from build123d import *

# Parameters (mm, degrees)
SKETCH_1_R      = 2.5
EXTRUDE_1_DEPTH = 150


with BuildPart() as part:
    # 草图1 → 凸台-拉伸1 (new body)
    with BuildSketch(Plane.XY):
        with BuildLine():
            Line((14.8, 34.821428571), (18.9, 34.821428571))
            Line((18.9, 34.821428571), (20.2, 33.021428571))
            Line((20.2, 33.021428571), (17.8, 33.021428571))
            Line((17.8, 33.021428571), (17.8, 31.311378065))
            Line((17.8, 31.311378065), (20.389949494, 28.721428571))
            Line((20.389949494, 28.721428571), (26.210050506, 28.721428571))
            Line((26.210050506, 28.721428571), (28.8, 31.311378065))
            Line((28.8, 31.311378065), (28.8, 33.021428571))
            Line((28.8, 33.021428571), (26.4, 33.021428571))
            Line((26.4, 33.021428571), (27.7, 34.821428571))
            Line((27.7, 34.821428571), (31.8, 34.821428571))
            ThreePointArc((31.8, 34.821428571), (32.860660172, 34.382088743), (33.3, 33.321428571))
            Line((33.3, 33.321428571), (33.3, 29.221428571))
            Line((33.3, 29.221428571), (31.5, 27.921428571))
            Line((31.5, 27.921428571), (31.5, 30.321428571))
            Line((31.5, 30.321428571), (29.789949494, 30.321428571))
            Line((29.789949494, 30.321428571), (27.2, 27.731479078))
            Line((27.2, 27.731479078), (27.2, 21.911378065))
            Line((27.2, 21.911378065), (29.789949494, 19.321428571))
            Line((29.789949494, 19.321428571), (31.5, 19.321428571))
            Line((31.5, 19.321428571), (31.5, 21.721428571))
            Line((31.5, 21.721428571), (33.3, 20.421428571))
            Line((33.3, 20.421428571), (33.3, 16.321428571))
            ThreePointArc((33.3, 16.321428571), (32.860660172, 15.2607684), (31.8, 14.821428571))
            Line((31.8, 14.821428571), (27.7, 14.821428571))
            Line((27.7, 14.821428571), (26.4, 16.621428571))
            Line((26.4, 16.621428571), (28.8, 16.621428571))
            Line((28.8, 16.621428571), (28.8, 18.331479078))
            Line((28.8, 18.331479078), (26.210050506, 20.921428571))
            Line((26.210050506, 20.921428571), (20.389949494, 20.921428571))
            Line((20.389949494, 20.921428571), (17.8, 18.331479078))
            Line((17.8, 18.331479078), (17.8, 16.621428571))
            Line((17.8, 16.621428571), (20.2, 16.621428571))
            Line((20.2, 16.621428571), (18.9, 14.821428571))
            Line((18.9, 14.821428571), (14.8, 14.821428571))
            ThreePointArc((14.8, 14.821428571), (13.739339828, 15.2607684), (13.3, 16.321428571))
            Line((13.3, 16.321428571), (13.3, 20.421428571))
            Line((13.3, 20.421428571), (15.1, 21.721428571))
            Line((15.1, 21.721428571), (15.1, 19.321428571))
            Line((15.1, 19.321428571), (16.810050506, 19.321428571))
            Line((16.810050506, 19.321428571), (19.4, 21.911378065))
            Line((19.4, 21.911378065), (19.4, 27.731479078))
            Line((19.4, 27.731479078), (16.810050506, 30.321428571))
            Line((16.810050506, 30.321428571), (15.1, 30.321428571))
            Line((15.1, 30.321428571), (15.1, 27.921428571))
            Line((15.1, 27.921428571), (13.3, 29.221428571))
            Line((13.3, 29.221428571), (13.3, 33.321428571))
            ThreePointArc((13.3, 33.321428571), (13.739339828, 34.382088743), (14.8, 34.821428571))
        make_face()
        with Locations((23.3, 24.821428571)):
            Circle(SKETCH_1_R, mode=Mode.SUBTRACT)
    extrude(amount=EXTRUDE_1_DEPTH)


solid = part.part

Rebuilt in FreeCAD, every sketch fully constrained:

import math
import FreeCAD as App
import Part
import Sketcher
Q = App.Units.Quantity

doc = App.newDocument("Part")
body = doc.addObject("PartDesign::Body", "Body")

sketch1 = body.newObject("Sketcher::SketchObject", "Sketch")
sketch1.AttachmentSupport = (doc.getObject("XY_Plane"), [""])
sketch1.MapMode = "FlatFace"
sketch1.addGeometry([
    Part.LineSegment(App.Vector(18.9, 34.8, 0), App.Vector(14.8, 34.8, 0)),
    Part.ArcOfCircle(Part.Circle(App.Vector(14.8, 33.3, 0), App.Vector(0, 0, 1), 1.5), math.radians(90), math.radians(180)),
    Part.LineSegment(App.Vector(13.3, 33.3, 0), App.Vector(13.3, 29.2, 0)),
    Part.LineSegment(App.Vector(13.3, 29.2, 0), App.Vector(15.1, 27.9, 0)),
    Part.LineSegment(App.Vector(15.1, 27.9, 0), App.Vector(15.1, 30.3, 0)),
    Part.LineSegment(App.Vector(15.1, 30.3, 0), App.Vector(16.8, 30.3, 0)),
    Part.LineSegment(App.Vector(16.8, 30.3, 0), App.Vector(19.4, 27.7, 0)),
    Part.LineSegment(App.Vector(19.4, 27.7, 0), App.Vector(19.4, 21.9, 0)),
    Part.LineSegment(App.Vector(19.4, 21.9, 0), App.Vector(16.8, 19.3, 0)),
    Part.LineSegment(App.Vector(16.8, 19.3, 0), App.Vector(15.1, 19.3, 0)),
    Part.LineSegment(App.Vector(15.1, 19.3, 0), App.Vector(15.1, 21.7, 0)),
    Part.LineSegment(App.Vector(15.1, 21.7, 0), App.Vector(13.3, 20.4, 0)),
    Part.LineSegment(App.Vector(13.3, 20.4, 0), App.Vector(13.3, 16.3, 0)),
    Part.ArcOfCircle(Part.Circle(App.Vector(14.8, 16.3, 0), App.Vector(0, 0, 1), 1.5), math.radians(-180), math.radians(-90)),
    Part.LineSegment(App.Vector(14.8, 14.8, 0), App.Vector(18.9, 14.8, 0)),
    Part.LineSegment(App.Vector(18.9, 14.8, 0), App.Vector(20.2, 16.6, 0)),
    Part.LineSegment(App.Vector(20.2, 16.6, 0), App.Vector(17.8, 16.6, 0)),
    Part.LineSegment(App.Vector(17.8, 16.6, 0), App.Vector(17.8, 18.3, 0)),
    Part.LineSegment(App.Vector(17.8, 18.3, 0), App.Vector(20.4, 20.9, 0)),
    Part.LineSegment(App.Vector(20.4, 20.9, 0), App.Vector(26.2, 20.9, 0)),
    Part.LineSegment(App.Vector(26.2, 20.9, 0), App.Vector(28.8, 18.3, 0)),
    Part.LineSegment(App.Vector(28.8, 18.3, 0), App.Vector(28.8, 16.6, 0)),
    Part.LineSegment(App.Vector(28.8, 16.6, 0), App.Vector(26.4, 16.6, 0)),
    Part.LineSegment(App.Vector(26.4, 16.6, 0), App.Vector(27.7, 14.8, 0)),
    Part.LineSegment(App.Vector(27.7, 14.8, 0), App.Vector(31.8, 14.8, 0)),
    Part.ArcOfCircle(Part.Circle(App.Vector(31.8, 16.3, 0), App.Vector(0, 0, 1), 1.5), math.radians(-90), math.radians(0)),
    Part.LineSegment(App.Vector(33.3, 16.3, 0), App.Vector(33.3, 20.4, 0)),
    Part.LineSegment(App.Vector(33.3, 20.4, 0), App.Vector(31.5, 21.7, 0)),
    Part.LineSegment(App.Vector(31.5, 21.7, 0), App.Vector(31.5, 19.3, 0)),
    Part.LineSegment(App.Vector(31.5, 19.3, 0), App.Vector(29.8, 19.3, 0)),
    Part.LineSegment(App.Vector(29.8, 19.3, 0), App.Vector(27.2, 21.9, 0)),
    Part.LineSegment(App.Vector(27.2, 21.9, 0), App.Vector(27.2, 27.7, 0)),
    Part.LineSegment(App.Vector(27.2, 27.7, 0), App.Vector(29.8, 30.3, 0)),
    Part.LineSegment(App.Vector(29.8, 30.3, 0), App.Vector(31.5, 30.3, 0)),
    Part.LineSegment(App.Vector(31.5, 30.3, 0), App.Vector(31.5, 27.9, 0)),
    Part.LineSegment(App.Vector(31.5, 27.9, 0), App.Vector(33.3, 29.2, 0)),
    Part.LineSegment(App.Vector(33.3, 29.2, 0), App.Vector(33.3, 33.3, 0)),
    Part.ArcOfCircle(Part.Circle(App.Vector(31.8, 33.3, 0), App.Vector(0, 0, 1), 1.5), math.radians(0), math.radians(90)),
    Part.LineSegment(App.Vector(31.8, 34.8, 0), App.Vector(27.7, 34.8, 0)),
    Part.LineSegment(App.Vector(27.7, 34.8, 0), App.Vector(26.4, 33, 0)),
    Part.LineSegment(App.Vector(26.4, 33, 0), App.Vector(28.8, 33, 0)),
    Part.LineSegment(App.Vector(28.8, 33, 0), App.Vector(28.8, 31.3, 0)),
    Part.LineSegment(App.Vector(28.8, 31.3, 0), App.Vector(26.2, 28.7, 0)),
    Part.LineSegment(App.Vector(26.2, 28.7, 0), App.Vector(20.4, 28.7, 0)),
    Part.LineSegment(App.Vector(20.4, 28.7, 0), App.Vector(17.8, 31.3, 0)),
    Part.LineSegment(App.Vector(17.8, 31.3, 0), App.Vector(17.8, 33, 0)),
    Part.LineSegment(App.Vector(17.8, 33, 0), App.Vector(20.2, 33, 0)),
    Part.LineSegment(App.Vector(20.2, 33, 0), App.Vector(18.9, 34.8, 0)),
    Part.Circle(App.Vector(23.3, 24.8, 0), App.Vector(0, 0, 1), 2.5),
], False)
sketch1.addConstraint([
    Sketcher.Constraint("Tangent", 0, 2, 1, 1),
    Sketcher.Constraint("Tangent", 1, 2, 2, 1),
    Sketcher.Constraint("Coincident", 2, 2, 3, 1),
    Sketcher.Constraint("Coincident", 3, 2, 4, 1),
    Sketcher.Constraint("Coincident", 4, 2, 5, 1),
    Sketcher.Constraint("Coincident", 5, 2, 6, 1),
    Sketcher.Constraint("Coincident", 6, 2, 7, 1),
    Sketcher.Constraint("Coincident", 7, 2, 8, 1),
    Sketcher.Constraint("Coincident", 8, 2, 9, 1),
    Sketcher.Constraint("Coincident", 9, 2, 10, 1),
    Sketcher.Constraint("Coincident", 10, 2, 11, 1),
    Sketcher.Constraint("Coincident", 11, 2, 12, 1),
    Sketcher.Constraint("Tangent", 12, 2, 13, 1),
    Sketcher.Constraint("Tangent", 13, 2, 14, 1),
    Sketcher.Constraint("Coincident", 14, 2, 15, 1),
    Sketcher.Constraint("Coincident", 15, 2, 16, 1),
    Sketcher.Constraint("Coincident", 16, 2, 17, 1),
    Sketcher.Constraint("Coincident", 17, 2, 18, 1),
    Sketcher.Constraint("Coincident", 18, 2, 19, 1),
    Sketcher.Constraint("Coincident", 19, 2, 20, 1),
    Sketcher.Constraint("Coincident", 20, 2, 21, 1),
    Sketcher.Constraint("Coincident", 21, 2, 22, 1),
    Sketcher.Constraint("Coincident", 22, 2, 23, 1),
    Sketcher.Constraint("Coincident", 23, 2, 24, 1),
    Sketcher.Constraint("Tangent", 24, 2, 25, 1),
    Sketcher.Constraint("Tangent", 25, 2, 26, 1),
    Sketcher.Constraint("Coincident", 26, 2, 27, 1),
    Sketcher.Constraint("Coincident", 27, 2, 28, 1),
    Sketcher.Constraint("Coincident", 28, 2, 29, 1),
    Sketcher.Constraint("Coincident", 29, 2, 30, 1),
    Sketcher.Constraint("Coincident", 30, 2, 31, 1),
    Sketcher.Constraint("Coincident", 31, 2, 32, 1),
    Sketcher.Constraint("Coincident", 32, 2, 33, 1),
    Sketcher.Constraint("Coincident", 33, 2, 34, 1),
    Sketcher.Constraint("Coincident", 34, 2, 35, 1),
    Sketcher.Constraint("Coincident", 35, 2, 36, 1),
    Sketcher.Constraint("Tangent", 36, 2, 37, 1),
    Sketcher.Constraint("Tangent", 37, 2, 38, 1),
    Sketcher.Constraint("Coincident", 38, 2, 39, 1),
    Sketcher.Constraint("Coincident", 39, 2, 40, 1),
    Sketcher.Constraint("Coincident", 40, 2, 41, 1),
    Sketcher.Constraint("Coincident", 41, 2, 42, 1),
    Sketcher.Constraint("Coincident", 42, 2, 43, 1),
    Sketcher.Constraint("Coincident", 43, 2, 44, 1),
    Sketcher.Constraint("Coincident", 44, 2, 45, 1),
    Sketcher.Constraint("Coincident", 45, 2, 46, 1),
    Sketcher.Constraint("Coincident", 46, 2, 47, 1),
    Sketcher.Constraint("Coincident", 47, 2, 0, 1),
    Sketcher.Constraint("Horizontal", 0),
    Sketcher.Constraint("Vertical", 2),
    Sketcher.Constraint("Vertical", 4),
    Sketcher.Constraint("Horizontal", 5),
    Sketcher.Constraint("Vertical", 7),
    Sketcher.Constraint("Horizontal", 9),
    Sketcher.Constraint("Vertical", 10),
    Sketcher.Constraint("Vertical", 12),
    Sketcher.Constraint("Horizontal", 14),
    Sketcher.Constraint("Horizontal", 16),
    Sketcher.Constraint("Vertical", 17),
    Sketcher.Constraint("Horizontal", 19),
    Sketcher.Constraint("Vertical", 21),
    Sketcher.Constraint("Horizontal", 22),
    Sketcher.Constraint("Horizontal", 24),
    Sketcher.Constraint("Vertical", 26),
    Sketcher.Constraint("Vertical", 28),
    Sketcher.Constraint("Horizontal", 29),
    Sketcher.Constraint("Vertical", 31),
    Sketcher.Constraint("Horizontal", 33),
    Sketcher.Constraint("Vertical", 34),
    Sketcher.Constraint("Vertical", 36),
    Sketcher.Constraint("Horizontal", 38),
    Sketcher.Constraint("Horizontal", 40),
    Sketcher.Constraint("Vertical", 41),
    Sketcher.Constraint("Horizontal", 43),
    Sketcher.Constraint("Vertical", 45),
    Sketcher.Constraint("Horizontal", 46),
    Sketcher.Constraint("Equal", 1, 13),
    Sketcher.Constraint("Equal", 13, 25),
    Sketcher.Constraint("Equal", 25, 37),
    Sketcher.Constraint("Perpendicular", 6, 8),
    Sketcher.Constraint("Perpendicular", 3, 15),
    Sketcher.Constraint("Parallel", 8, 18),
    Sketcher.Constraint("Perpendicular", 18, 20),
    Sketcher.Constraint("Perpendicular", 11, 23),
    Sketcher.Constraint("Perpendicular", 15, 27),
    Sketcher.Constraint("Parallel", 20, 30),
    Sketcher.Constraint("Perpendicular", 30, 32),
    Sketcher.Constraint("Perpendicular", 23, 35),
    Sketcher.Constraint("Perpendicular", 27, 39),
    Sketcher.Constraint("Parallel", 32, 42),
    Sketcher.Constraint("Perpendicular", 42, 44),
    Sketcher.Constraint("Perpendicular", 35, 47),
    Sketcher.Constraint("Horizontal", 13, 3, 25, 3),
    Sketcher.Constraint("Horizontal", 1, 3, 37, 3),
    Sketcher.Constraint("Horizontal", 17, 2, 20, 2),
    Sketcher.Constraint("Horizontal", 16, 2, 21, 2),
    Sketcher.Constraint("Horizontal", 11, 2, 26, 2),
    Sketcher.Constraint("Horizontal", 10, 2, 27, 2),
    Sketcher.Constraint("Horizontal", 9, 2, 28, 2),
    Sketcher.Constraint("Horizontal", 7, 2, 30, 2),
    Sketcher.Constraint("Horizontal", 6, 2, 31, 2),
    Sketcher.Constraint("Horizontal", 5, 2, 32, 2),
    Sketcher.Constraint("Horizontal", 3, 2, 34, 2),
    Sketcher.Constraint("Horizontal", 2, 2, 35, 2),
    Sketcher.Constraint("Horizontal", 41, 2, 44, 2),
    Sketcher.Constraint("Horizontal", 40, 2, 45, 2),
    Sketcher.Constraint("Vertical", 1, 3, 13, 3),
    Sketcher.Constraint("Vertical", 25, 3, 37, 3),
    Sketcher.Constraint("Vertical", 5, 2, 8, 2),
    Sketcher.Constraint("Vertical", 4, 2, 9, 2),
    Sketcher.Constraint("Vertical", 29, 2, 32, 2),
    Sketcher.Constraint("Vertical", 28, 2, 33, 2),
    Sketcher.Constraint("Vertical", 23, 2, 38, 2),
    Sketcher.Constraint("Vertical", 22, 2, 39, 2),
    Sketcher.Constraint("Vertical", 21, 2, 40, 2),
    Sketcher.Constraint("Vertical", 19, 2, 42, 2),
    Sketcher.Constraint("Vertical", 18, 2, 43, 2),
    Sketcher.Constraint("Vertical", 15, 2, 46, 2),
    Sketcher.Constraint("Equal", 16, 22),
    Sketcher.Constraint("Equal", 14, 24),
    Sketcher.Constraint("Equal", 9, 29),
    Sketcher.Constraint("Equal", 38, 2),
    Sketcher.Constraint("Equal", 46, 4),
    Sketcher.Constraint("Equal", 43, 7),
    Sketcher.Constraint("Equal", 4, 10),
    Sketcher.Constraint("Equal", 2, 12),
    Sketcher.Constraint("Equal", 33, 17),
    Sketcher.Constraint("Equal", 21, 41),
    Sketcher.Constraint("Equal", 11, 15),
    Sketcher.Constraint("Equal", 8, 18),
    Sketcher.Constraint("Diameter", 48, Q("5 mm")),
    Sketcher.Constraint("Radius", 1, Q("1.5 mm")),
    Sketcher.Constraint("DistanceX", 0, 2, 0, 1, Q("4.1 mm")),
    Sketcher.Constraint("DistanceX", 16, 2, 16, 1, Q("2.4 mm")),
    Sketcher.Constraint("DistanceY", 13, 3, 1, 3, Q("17 mm")),
    Sketcher.Constraint("DistanceY", 48, 3, 0, 2, Q("10 mm")),
    Sketcher.Constraint("DistanceX", 1, 2, 48, 3, Q("10 mm")),
    Sketcher.Constraint("DistanceY", 4, 2, 1, 3, Q("3 mm")),
    Sketcher.Constraint("DistanceX", -1, 1, 1, 3, Q("14.8 mm")),
    Sketcher.Constraint("DistanceX", -1, 1, 3, 2, Q("15.1 mm")),
    Sketcher.Constraint("DistanceX", -1, 1, 6, 2, Q("19.4 mm")),
    Sketcher.Constraint("DistanceX", 19, 1, 19, 2, Q("5.820101 mm")),
    Sketcher.Constraint("DistanceY", -1, 1, 1, 3, Q("33.321429 mm")),
])
pad1 = body.newObject("PartDesign::Pad", "Pad")
pad1.Profile = sketch1
pad1.Length = 150

doc.recompute()
